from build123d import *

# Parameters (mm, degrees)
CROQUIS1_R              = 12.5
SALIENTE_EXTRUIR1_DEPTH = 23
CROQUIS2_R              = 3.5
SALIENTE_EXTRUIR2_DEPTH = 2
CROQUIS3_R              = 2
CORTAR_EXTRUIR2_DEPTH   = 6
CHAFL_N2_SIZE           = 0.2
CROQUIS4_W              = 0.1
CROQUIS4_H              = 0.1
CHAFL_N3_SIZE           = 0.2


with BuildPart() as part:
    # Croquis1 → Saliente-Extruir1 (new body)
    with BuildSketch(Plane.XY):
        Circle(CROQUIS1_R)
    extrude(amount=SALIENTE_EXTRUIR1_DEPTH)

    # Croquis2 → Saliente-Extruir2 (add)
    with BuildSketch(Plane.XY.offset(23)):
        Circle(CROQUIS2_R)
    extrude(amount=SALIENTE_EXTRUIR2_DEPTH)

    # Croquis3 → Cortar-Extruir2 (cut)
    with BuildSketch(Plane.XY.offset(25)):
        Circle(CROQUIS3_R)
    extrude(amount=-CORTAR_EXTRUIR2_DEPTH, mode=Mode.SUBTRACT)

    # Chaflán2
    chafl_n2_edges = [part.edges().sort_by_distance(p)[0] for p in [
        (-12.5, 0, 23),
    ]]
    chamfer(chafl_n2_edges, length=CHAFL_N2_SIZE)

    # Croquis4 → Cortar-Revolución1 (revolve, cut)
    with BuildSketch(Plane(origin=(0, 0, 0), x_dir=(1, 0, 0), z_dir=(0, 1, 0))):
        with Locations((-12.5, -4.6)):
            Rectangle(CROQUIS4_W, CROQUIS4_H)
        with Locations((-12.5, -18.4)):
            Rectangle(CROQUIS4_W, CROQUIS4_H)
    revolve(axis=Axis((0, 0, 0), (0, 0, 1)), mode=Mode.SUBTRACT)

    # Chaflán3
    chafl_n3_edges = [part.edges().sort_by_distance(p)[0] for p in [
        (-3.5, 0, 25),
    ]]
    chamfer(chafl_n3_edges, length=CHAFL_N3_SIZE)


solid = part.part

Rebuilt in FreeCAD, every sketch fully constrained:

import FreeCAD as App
import Part
import Sketcher
Q = App.Units.Quantity


def edges_at(feature, points):
    """Names of the edges that pass closest to the given points."""
    edges = feature.Shape.Edges
    near = lambda p: min(range(len(edges)), key=lambda i: edges[i].distToShape(Part.Vertex(*p))[0])
    return sorted({f"Edge{near(p) + 1}" for p in points})

doc = App.newDocument("Part")
body = doc.addObject("PartDesign::Body", "Body")

sketch1 = body.newObject("Sketcher::SketchObject", "Sketch")
sketch1.AttachmentSupport = (doc.getObject("XY_Plane"), [""])
sketch1.MapMode = "FlatFace"
sketch1.addGeometry(Part.Circle(App.Vector(0, 0, 0), App.Vector(0, 0, 1), 12), False)
sketch1.addConstraint(Sketcher.Constraint("Coincident", 0, 3, -1, 1))
sketch1.addConstraint(Sketcher.Constraint("Diameter", 0, Q("25 mm")))
pad1 = body.newObject("PartDesign::Pad", "Pad")
pad1.Profile = sketch1
pad1.Length = 23

sketch2 = body.newObject("Sketcher::SketchObject", "Sketch001")
sketch2.AttachmentSupport = (doc.getObject("XY_Plane"), [""])
sketch2.MapMode = "FlatFace"
sketch2.AttachmentOffset = App.Placement(App.Vector(0, 0, 23), App.Rotation())
sketch2.addGeometry(Part.Circle(App.Vector(0, 0, 0), App.Vector(0, 0, 1), 3.5), False)
sketch2.addConstraint(Sketcher.Constraint("Coincident", 0, 3, -1, 1))
sketch2.addConstraint(Sketcher.Constraint("Diameter", 0, Q("7 mm")))
pad2 = body.newObject("PartDesign::Pad", "Pad001")
pad2.Profile = sketch2
pad2.Length = 2

sketch3 = body.newObject("Sketcher::SketchObject", "Sketch002")
sketch3.AttachmentSupport = (doc.getObject("XY_Plane"), [""])
sketch3.MapMode = "FlatFace"
sketch3.AttachmentOffset = App.Placement(App.Vector(0, 0, 25), App.Rotation())
sketch3.addGeometry(Part.Circle(App.Vector(0, 0, 0), App.Vector(0, 0, 1), 2), False)
sketch3.addConstraint(Sketcher.Constraint("Coincident", 0, 3, -1, 1))
sketch3.addConstraint(Sketcher.Constraint("Diameter", 0, Q("4 mm")))
pocket1 = body.newObject("PartDesign::Pocket", "Pocket")
pocket1.Profile = sketch3
pocket1.Length = 6
doc.recompute()

chamfer = body.newObject("PartDesign::Chamfer", "Chamfer")
chamfer.Base = (pocket1, edges_at(pocket1, [(-12.5, 0, 23)]))
chamfer.Size = 0.2

sketch4 = body.newObject("Sketcher::SketchObject", "Sketch003")
sketch4.AttachmentSupport = (doc.getObject("XZ_Plane"), [""])
sketch4.MapMode = "FlatFace"
sketch4.addGeometry(Part.LineSegment(App.Vector(-12.55, 4.55, 0), App.Vector(-12.55, 4.65, 0)), False)
sketch4.addGeometry(Part.LineSegment(App.Vector(-12.55, 4.65, 0), App.Vector(-12.45, 4.65, 0)), False)
sketch4.addGeometry(Part.LineSegment(App.Vector(-12.45, 4.65, 0), App.Vector(-12.45, 4.55, 0)), False)
sketch4.addGeometry(Part.LineSegment(App.Vector(-12.45, 4.55, 0), App.Vector(-12.55, 4.55, 0)), False)
sketch4.addGeometry(Part.LineSegment(App.Vector(-12.55, 18.35, 0), App.Vector(-12.55, 18.45, 0)), False)
sketch4.addGeometry(Part.LineSegment(App.Vector(-12.55, 18.45, 0), App.Vector(-12.45, 18.45, 0)), False)
sketch4.addGeometry(Part.LineSegment(App.Vector(-12.45, 18.45, 0), App.Vector(-12.45, 18.35, 0)), False)
sketch4.addGeometry(Part.LineSegment(App.Vector(-12.45, 18.35, 0), App.Vector(-12.55, 18.35, 0)), False)
sketch4.addConstraint(Sketcher.Constraint("Coincident", 0, 2, 1, 1))
sketch4.addConstraint(Sketcher.Constraint("Coincident", 1, 2, 2, 1))
sketch4.addConstraint(Sketcher.Constraint("Coincident", 2, 2, 3, 1))
sketch4.addConstraint(Sketcher.Constraint("Coincident", 3, 2, 0, 1))
sketch4.addConstraint(Sketcher.Constraint("Coincident", 4, 2, 5, 1))
sketch4.addConstraint(Sketcher.Constraint("Coincident", 5, 2, 6, 1))
sketch4.addConstraint(Sketcher.Constraint("Coincident", 6, 2, 7, 1))
sketch4.addConstraint(Sketcher.Constraint("Coincident", 7, 2, 4, 1))
sketch4.addConstraint(Sketcher.Constraint("Vertical", 0))
sketch4.addConstraint(Sketcher.Constraint("Horizontal", 1))
sketch4.addConstraint(Sketcher.Constraint("Vertical", 2))
sketch4.addConstraint(Sketcher.Constraint("Horizontal", 3))
sketch4.addConstraint(Sketcher.Constraint("Vertical", 4))
sketch4.addConstraint(Sketcher.Constraint("Horizontal", 5))
sketch4.addConstraint(Sketcher.Constraint("Vertical", 6))
sketch4.addConstraint(Sketcher.Constraint("Horizontal", 7))
sketch4.addConstraint(Sketcher.Constraint("Vertical", 3, 2, 4, 2))
sketch4.addConstraint(Sketcher.Constraint("Vertical", 2, 2, 5, 2))
sketch4.addConstraint(Sketcher.Constraint("Equal", 7, 0))
sketch4.addConstraint(Sketcher.Constraint("Equal", 2, 4))
sketch4.addConstraint(Sketcher.Constraint("DistanceX", 1, 1, 1, 2, Q("0.1 mm")))
sketch4.addConstraint(Sketcher.Constraint("DistanceY", 0, 2, 4, 2, Q("13.8 mm")))
sketch4.addConstraint(Sketcher.Constraint("DistanceX", 0, 2, -1, 1, Q("12.55 mm")))
sketch4.addConstraint(Sketcher.Constraint("DistanceY", -1, 1, 0, 2, Q("4.65 mm")))
groove = body.newObject("PartDesign::Groove", "Groove")
groove.Profile = sketch4
groove.ReferenceAxis = (sketch4, ["V_Axis"])
groove.Angle = 360
doc.recompute()

chamfer2 = body.newObject("PartDesign::Chamfer", "Chamfer001")
chamfer2.Base = (groove, edges_at(groove, [(-3.5, 0, 25)]))
chamfer2.Size = 0.2

doc.recompute()
